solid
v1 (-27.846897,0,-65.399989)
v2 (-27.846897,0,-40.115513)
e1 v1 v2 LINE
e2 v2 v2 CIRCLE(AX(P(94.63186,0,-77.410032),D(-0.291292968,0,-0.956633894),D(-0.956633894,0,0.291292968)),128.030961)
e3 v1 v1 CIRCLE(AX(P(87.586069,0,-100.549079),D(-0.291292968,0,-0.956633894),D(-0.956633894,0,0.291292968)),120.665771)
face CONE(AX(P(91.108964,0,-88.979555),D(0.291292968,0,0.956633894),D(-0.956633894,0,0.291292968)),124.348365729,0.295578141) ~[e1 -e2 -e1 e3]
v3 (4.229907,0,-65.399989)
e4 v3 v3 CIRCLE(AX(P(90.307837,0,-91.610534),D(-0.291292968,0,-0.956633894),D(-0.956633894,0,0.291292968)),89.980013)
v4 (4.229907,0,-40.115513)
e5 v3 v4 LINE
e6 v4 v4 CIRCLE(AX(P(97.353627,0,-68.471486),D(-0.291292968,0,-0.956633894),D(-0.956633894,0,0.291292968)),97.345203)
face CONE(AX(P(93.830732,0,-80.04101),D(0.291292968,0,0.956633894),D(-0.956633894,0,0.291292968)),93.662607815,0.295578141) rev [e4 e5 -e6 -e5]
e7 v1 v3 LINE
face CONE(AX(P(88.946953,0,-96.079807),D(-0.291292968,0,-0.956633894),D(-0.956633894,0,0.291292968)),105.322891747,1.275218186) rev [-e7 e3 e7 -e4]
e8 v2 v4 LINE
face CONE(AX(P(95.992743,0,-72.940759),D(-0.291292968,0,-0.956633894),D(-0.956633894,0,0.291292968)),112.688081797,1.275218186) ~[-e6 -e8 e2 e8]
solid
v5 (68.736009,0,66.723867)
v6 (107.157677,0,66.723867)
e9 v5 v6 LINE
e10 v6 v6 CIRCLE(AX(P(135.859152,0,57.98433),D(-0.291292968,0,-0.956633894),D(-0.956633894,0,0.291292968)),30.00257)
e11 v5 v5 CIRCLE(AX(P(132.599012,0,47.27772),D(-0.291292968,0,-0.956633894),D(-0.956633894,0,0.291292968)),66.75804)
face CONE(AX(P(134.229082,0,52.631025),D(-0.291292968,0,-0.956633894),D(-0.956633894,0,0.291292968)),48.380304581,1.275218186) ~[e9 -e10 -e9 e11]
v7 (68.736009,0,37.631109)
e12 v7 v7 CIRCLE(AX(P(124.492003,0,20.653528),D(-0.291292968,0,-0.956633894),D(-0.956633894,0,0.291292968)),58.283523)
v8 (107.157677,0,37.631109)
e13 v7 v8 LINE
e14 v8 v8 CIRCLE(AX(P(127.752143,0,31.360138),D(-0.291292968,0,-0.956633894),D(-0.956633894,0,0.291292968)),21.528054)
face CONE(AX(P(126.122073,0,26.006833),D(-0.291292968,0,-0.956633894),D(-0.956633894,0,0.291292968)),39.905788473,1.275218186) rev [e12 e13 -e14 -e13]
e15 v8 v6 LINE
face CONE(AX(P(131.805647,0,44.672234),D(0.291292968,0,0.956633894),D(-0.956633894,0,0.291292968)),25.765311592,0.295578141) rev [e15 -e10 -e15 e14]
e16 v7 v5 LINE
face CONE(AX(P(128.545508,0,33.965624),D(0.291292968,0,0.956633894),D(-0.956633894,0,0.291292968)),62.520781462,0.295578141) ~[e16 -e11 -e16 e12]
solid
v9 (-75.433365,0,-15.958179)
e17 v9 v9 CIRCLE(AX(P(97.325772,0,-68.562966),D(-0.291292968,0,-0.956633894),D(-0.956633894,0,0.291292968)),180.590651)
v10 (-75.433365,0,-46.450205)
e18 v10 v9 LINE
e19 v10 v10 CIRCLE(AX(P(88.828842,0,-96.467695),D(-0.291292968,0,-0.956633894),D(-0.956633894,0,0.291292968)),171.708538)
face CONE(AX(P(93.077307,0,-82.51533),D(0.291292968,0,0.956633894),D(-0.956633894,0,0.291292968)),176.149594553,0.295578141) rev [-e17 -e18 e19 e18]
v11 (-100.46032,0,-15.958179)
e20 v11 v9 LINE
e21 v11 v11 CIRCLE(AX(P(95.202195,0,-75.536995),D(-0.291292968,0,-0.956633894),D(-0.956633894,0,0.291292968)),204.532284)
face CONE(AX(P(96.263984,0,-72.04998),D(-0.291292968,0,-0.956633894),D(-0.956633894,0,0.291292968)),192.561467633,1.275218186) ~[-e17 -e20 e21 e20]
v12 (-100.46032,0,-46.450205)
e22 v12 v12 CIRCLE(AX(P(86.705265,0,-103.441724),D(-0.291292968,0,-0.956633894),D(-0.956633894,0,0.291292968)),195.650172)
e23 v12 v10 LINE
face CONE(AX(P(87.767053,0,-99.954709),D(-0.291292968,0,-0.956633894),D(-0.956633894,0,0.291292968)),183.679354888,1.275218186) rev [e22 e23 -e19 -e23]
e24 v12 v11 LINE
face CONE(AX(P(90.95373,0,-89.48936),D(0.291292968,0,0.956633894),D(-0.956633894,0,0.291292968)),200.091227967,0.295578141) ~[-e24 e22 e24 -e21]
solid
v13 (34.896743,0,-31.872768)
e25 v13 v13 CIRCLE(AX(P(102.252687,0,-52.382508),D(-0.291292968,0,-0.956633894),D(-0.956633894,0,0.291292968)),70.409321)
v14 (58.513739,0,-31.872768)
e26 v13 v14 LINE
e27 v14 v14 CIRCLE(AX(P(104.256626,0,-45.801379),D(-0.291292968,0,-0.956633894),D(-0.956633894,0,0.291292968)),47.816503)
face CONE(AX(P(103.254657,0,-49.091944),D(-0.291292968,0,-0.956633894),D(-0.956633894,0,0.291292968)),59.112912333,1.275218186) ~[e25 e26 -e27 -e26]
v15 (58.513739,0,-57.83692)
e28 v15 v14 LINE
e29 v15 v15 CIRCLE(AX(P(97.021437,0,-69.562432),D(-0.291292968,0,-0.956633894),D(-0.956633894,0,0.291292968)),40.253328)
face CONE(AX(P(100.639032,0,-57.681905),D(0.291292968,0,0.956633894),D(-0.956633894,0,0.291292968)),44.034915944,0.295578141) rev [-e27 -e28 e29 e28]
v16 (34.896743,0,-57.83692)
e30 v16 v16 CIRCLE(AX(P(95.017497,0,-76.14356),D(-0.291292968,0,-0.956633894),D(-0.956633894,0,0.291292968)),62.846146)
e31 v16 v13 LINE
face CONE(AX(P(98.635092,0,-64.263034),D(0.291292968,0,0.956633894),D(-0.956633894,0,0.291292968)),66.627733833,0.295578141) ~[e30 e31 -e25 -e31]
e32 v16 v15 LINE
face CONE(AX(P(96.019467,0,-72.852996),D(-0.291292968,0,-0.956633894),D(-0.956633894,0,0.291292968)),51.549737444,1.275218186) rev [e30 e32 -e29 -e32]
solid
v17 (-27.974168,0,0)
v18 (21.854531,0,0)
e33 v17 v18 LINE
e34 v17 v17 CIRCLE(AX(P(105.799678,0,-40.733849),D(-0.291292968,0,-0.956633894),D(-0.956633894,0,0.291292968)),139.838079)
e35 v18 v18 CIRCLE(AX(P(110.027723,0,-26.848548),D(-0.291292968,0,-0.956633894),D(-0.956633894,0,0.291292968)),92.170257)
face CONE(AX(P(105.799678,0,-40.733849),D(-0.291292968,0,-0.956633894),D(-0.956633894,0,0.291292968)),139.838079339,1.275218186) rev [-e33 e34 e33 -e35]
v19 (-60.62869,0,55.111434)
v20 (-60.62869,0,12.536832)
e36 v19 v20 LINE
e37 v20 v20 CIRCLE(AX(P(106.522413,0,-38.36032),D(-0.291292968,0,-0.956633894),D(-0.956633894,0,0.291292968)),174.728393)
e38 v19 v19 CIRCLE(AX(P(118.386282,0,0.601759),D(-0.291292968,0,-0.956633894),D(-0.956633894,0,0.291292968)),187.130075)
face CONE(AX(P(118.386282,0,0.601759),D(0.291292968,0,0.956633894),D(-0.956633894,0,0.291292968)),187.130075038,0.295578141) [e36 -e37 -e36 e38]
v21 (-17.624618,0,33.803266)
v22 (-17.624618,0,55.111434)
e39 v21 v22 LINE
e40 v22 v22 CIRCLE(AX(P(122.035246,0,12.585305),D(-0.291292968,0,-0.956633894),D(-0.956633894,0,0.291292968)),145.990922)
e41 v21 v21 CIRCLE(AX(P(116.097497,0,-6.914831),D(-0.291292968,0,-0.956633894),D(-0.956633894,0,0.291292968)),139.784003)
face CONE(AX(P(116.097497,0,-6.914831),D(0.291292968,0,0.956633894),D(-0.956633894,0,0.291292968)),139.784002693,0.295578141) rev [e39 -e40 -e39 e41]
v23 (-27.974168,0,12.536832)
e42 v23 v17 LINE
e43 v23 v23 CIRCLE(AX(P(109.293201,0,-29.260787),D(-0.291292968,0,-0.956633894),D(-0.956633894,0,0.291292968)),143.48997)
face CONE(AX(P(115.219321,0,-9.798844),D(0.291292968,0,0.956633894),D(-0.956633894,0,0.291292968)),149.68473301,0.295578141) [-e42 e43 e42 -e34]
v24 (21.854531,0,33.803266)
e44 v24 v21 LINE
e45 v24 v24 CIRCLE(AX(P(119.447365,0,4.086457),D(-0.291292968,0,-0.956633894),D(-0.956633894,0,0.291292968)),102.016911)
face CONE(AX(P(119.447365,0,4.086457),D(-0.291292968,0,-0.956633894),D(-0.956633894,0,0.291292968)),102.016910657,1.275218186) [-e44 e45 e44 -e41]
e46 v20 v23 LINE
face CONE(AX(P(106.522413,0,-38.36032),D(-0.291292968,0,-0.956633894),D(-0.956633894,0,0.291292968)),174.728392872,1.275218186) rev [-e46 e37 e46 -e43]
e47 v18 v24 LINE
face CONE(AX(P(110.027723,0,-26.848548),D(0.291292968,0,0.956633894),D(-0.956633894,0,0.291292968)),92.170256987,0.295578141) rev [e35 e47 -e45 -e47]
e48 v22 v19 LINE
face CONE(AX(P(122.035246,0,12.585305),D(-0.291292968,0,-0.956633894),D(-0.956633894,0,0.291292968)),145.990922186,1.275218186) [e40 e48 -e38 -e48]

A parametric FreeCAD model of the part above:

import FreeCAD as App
import Part
import Sketcher
Q = App.Units.Quantity


def add_polygon(sketch, points):
    """Adds a closed chain of lines whose ends are joined by coincident constraints."""
    first, n = sketch.GeometryCount, len(points)
    for a, b in zip(points, points[1:] + points[:1]):
        sketch.addGeometry(Part.LineSegment(App.Vector(*a, 0), App.Vector(*b, 0)), False)
    for i in range(n):
        sketch.addConstraint(Sketcher.Constraint("Coincident", first + i, 2, first + (i + 1) % n, 1))

doc = App.newDocument("Part")
body = doc.addObject("PartDesign::Body", "Body")
body.AllowCompound = True

# Sketch on XZ plane
sketch1 = body.newObject("Sketcher::SketchObject", "Sketch")
sketch1.AttachmentSupport = (doc.getObject("XZ_Plane"), [""])
sketch1.MapMode = "FlatFace"
add_polygon(sketch1, [(35, -32), (35, -58), (59, -58), (59, -32)])  # lines 0-3
add_polygon(sketch1, [(69, 67), (69, 38), (107, 38), (107, 67)])  # lines 4-7
add_polygon(sketch1, [(22, 34), (-18, 34), (-18, 55), (-61, 55), (-61, 13), (-28, 13), (-28, 0), (22, 0)])  # lines 8-15
add_polygon(sketch1, [(-100, -16), (-100, -46), (-75, -46), (-75, -16)])  # lines 16-19
add_polygon(sketch1, [(-28, -40), (-28, -65), (4, -65), (4, -40)])  # lines 20-23
sketch1.addGeometry(Part.LineSegment(App.Vector(136, 58, 0), App.Vector(87, -103, 0)), True)  # axis
sketch1.addConstraint([
    Sketcher.Constraint("Vertical", 0),
    Sketcher.Constraint("Horizontal", 1),
    Sketcher.Constraint("Vertical", 2),
    Sketcher.Constraint("Horizontal", 3),
    Sketcher.Constraint("Vertical", 4),
    Sketcher.Constraint("Horizontal", 5),
    Sketcher.Constraint("Vertical", 6),
    Sketcher.Constraint("Horizontal", 7),
    Sketcher.Constraint("Horizontal", 8),
    Sketcher.Constraint("Vertical", 9),
    Sketcher.Constraint("Horizontal", 10),
    Sketcher.Constraint("Vertical", 11),
    Sketcher.Constraint("Horizontal", 12),
    Sketcher.Constraint("Vertical", 13),
    Sketcher.Constraint("Horizontal", 14),
    Sketcher.Constraint("Vertical", 15),
    Sketcher.Constraint("Vertical", 16),
    Sketcher.Constraint("Horizontal", 17),
    Sketcher.Constraint("Vertical", 18),
    Sketcher.Constraint("Horizontal", 19),
    Sketcher.Constraint("Vertical", 20),
    Sketcher.Constraint("Horizontal", 21),
    Sketcher.Constraint("Vertical", 22),
    Sketcher.Constraint("Horizontal", 23),
    Sketcher.Constraint("PointOnObject", 13, 2, -1),
    Sketcher.Constraint("DistanceX", 14, 1, 14, 2, Q("49.828699 mm")),
    Sketcher.Constraint("DistanceX", 5, 1, 5, 2, Q("38.421668 mm")),
    Sketcher.Constraint("DistanceX", 8, 2, 8, 1, Q("39.479149 mm")),
    Sketcher.Constraint("DistanceX", 10, 2, 10, 1, Q("43.004072 mm")),
    Sketcher.Constraint("DistanceY", 0, 2, 0, 1, Q("25.964152 mm")),
    Sketcher.Constraint("DistanceY", 4, 2, 4, 1, Q("29.092759 mm")),
    Sketcher.Constraint("DistanceY", 9, 1, 9, 2, Q("21.308168 mm")),
    Sketcher.Constraint("DistanceY", 8, 2, 7, 2, Q("32.920601 mm")),
    Sketcher.Constraint("DistanceX", 10, 2, 7, 2, Q("129.364699 mm")),
    Sketcher.Constraint("DistanceY", 3, 2, 11, 2, Q("44.4096 mm")),
    Sketcher.Constraint("DistanceX", 1, 1, 1, 2, Q("23.616995 mm")),
    Sketcher.Constraint("DistanceX", 17, 1, 17, 2, Q("25.026955 mm")),
    Sketcher.Constraint("DistanceX", 21, 1, 21, 2, Q("32.076804 mm")),
    Sketcher.Constraint("DistanceY", 11, 2, 11, 1, Q("42.574602 mm")),
    Sketcher.Constraint("DistanceY", 13, 2, 13, 1, Q("12.536832 mm")),
    Sketcher.Constraint("DistanceY", 16, 2, 16, 1, Q("30.492026 mm")),
    Sketcher.Constraint("DistanceY", 20, 2, 20, 1, Q("25.284476 mm")),
    Sketcher.Constraint("DistanceX", -1, 1, 1, 2, Q("58.513739 mm")),
    Sketcher.Constraint("DistanceX", -1, 1, 4, 2, Q("68.736009 mm")),
    Sketcher.Constraint("DistanceX", 16, 2, -1, 1, Q("100.46032 mm")),
    Sketcher.Constraint("DistanceY", 18, 2, -1, 1, Q("15.958179 mm")),
    Sketcher.Constraint("DistanceY", 20, 2, -1, 1, Q("65.399989 mm")),
    Sketcher.Constraint("DistanceY", -1, 1, 24, 1, Q("57.98433 mm")),
    Sketcher.Constraint("DistanceX", 17, 2, 20, 2, Q("47.586468 mm")),
    Sketcher.Constraint("DistanceX", 15, 2, 24, 1, Q("114.004621 mm")),
    Sketcher.Constraint("DistanceX", 0, 2, 24, 2, Q("51.808521 mm")),
    Sketcher.Constraint("Distance", 24, Q("168.743816 mm")),
])
revolution = body.newObject("PartDesign::Revolution", "Revolution")
revolution.Profile = sketch1
revolution.ReferenceAxis = (sketch1, ["Axis0"])
revolution.Angle = 360

doc.recompute()
